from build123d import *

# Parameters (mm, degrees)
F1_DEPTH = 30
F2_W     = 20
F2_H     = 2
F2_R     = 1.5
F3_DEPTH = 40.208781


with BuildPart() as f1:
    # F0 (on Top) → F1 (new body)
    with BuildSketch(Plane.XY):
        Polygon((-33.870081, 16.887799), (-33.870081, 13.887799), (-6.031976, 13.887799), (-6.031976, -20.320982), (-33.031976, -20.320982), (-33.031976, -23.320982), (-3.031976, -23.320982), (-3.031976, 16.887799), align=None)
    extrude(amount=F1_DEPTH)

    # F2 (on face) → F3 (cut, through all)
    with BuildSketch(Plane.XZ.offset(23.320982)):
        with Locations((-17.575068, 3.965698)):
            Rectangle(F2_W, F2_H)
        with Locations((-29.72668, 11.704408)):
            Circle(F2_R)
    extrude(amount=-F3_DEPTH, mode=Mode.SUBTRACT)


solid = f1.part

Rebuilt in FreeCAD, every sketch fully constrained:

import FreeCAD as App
import Part
import Sketcher

V = App.Vector
Q = App.Units.Quantity


def add_polygon(sketch, points):
    """Adds a closed chain of lines whose ends are joined by coincident constraints."""
    first, n = sketch.GeometryCount, len(points)
    for a, b in zip(points, points[1:] + points[:1]):
        sketch.addGeometry(Part.LineSegment(App.Vector(*a, 0), App.Vector(*b, 0)), False)
    for i in range(n):
        sketch.addConstraint(Sketcher.Constraint("Coincident", first + i, 2, first + (i + 1) % n, 1))

doc = App.newDocument("Part")
body = doc.addObject("PartDesign::Body", "Body")

sketch1 = body.newObject("Sketcher::SketchObject", "Sketch")
sketch1.AttachmentSupport = (doc.getObject("XY_Plane"), [""])
sketch1.MapMode = "FlatFace"
add_polygon(sketch1, [(-33.870081, 16.887799), (-33.870081, 13.887799), (-6.031976, 13.887799), (-6.031976, -20.320982), (-33.031976, -20.320982), (-33.031976, -23.320982), (-3.031976, -23.320982), (-3.031976, 16.887799)])
sketch1.addConstraint([
    Sketcher.Constraint("Vertical", 0),
    Sketcher.Constraint("Horizontal", 1),
    Sketcher.Constraint("Vertical", 2),
    Sketcher.Constraint("Horizontal", 3),
    Sketcher.Constraint("Vertical", 4),
    Sketcher.Constraint("Horizontal", 5),
    Sketcher.Constraint("Vertical", 6),
    Sketcher.Constraint("Horizontal", 7),
    Sketcher.Constraint("Equal", 0, 4),
    Sketcher.Constraint("DistanceX", 3, 2, 3, 1, Q("27 mm")),
    Sketcher.Constraint("DistanceX", 5, 1, 5, 2, Q("30 mm")),
    Sketcher.Constraint("DistanceY", 0, 2, 0, 1, Q("3 mm")),
    Sketcher.Constraint("DistanceY", 2, 2, 2, 1, Q("34.208781 mm")),
    Sketcher.Constraint("DistanceY", -1, 1, 0, 2, Q("13.887799 mm")),
    Sketcher.Constraint("DistanceX", 1, 1, 1, 2, Q("27.838105 mm")),
    Sketcher.Constraint("DistanceX", 0, 2, -1, 1, Q("33.870081 mm")),
])
pad1 = body.newObject("PartDesign::Pad", "Pad")
pad1.Profile = sketch1
pad1.Length = 30

sketch2 = body.newObject("Sketcher::SketchObject", "Sketch001")
sketch2.AttachmentSupport = (doc.getObject("XZ_Plane"), [""])
sketch2.MapMode = "FlatFace"
sketch2.AttachmentOffset = App.Placement(V(0, 0, 23.320982), App.Rotation())
add_polygon(sketch2, [(-27.575068, 4.965698), (-27.575068, 2.965698), (-7.575068, 2.965698), (-7.575068, 4.965698)])
sketch2.addGeometry(Part.Circle(V(-29.72668, 11.704408, 0), V(0, 0, 1), 1.5), False)
sketch2.addConstraint([
    Sketcher.Constraint("Vertical", 0),
    Sketcher.Constraint("Horizontal", 1),
    Sketcher.Constraint("Vertical", 2),
    Sketcher.Constraint("Horizontal", 3),
    Sketcher.Constraint("Diameter", 4, Q("3 mm")),
    Sketcher.Constraint("DistanceX", 1, 1, 1, 2, Q("20 mm")),
    Sketcher.Constraint("DistanceY", 0, 2, 0, 1, Q("2 mm")),
    Sketcher.Constraint("DistanceY", -1, 1, 0, 2, Q("2.965698 mm")),
    Sketcher.Constraint("DistanceX", 4, 3, -1, 1, Q("29.72668 mm")),
    Sketcher.Constraint("DistanceY", -1, 1, 4, 3, Q("11.704408 mm")),
    Sketcher.Constraint("DistanceX", 0, 2, -1, 1, Q("27.575068 mm")),
])
pocket1 = body.newObject("PartDesign::Pocket", "Pocket")
pocket1.Profile = sketch2
pocket1.Type = "ThroughAll"

doc.recompute()
